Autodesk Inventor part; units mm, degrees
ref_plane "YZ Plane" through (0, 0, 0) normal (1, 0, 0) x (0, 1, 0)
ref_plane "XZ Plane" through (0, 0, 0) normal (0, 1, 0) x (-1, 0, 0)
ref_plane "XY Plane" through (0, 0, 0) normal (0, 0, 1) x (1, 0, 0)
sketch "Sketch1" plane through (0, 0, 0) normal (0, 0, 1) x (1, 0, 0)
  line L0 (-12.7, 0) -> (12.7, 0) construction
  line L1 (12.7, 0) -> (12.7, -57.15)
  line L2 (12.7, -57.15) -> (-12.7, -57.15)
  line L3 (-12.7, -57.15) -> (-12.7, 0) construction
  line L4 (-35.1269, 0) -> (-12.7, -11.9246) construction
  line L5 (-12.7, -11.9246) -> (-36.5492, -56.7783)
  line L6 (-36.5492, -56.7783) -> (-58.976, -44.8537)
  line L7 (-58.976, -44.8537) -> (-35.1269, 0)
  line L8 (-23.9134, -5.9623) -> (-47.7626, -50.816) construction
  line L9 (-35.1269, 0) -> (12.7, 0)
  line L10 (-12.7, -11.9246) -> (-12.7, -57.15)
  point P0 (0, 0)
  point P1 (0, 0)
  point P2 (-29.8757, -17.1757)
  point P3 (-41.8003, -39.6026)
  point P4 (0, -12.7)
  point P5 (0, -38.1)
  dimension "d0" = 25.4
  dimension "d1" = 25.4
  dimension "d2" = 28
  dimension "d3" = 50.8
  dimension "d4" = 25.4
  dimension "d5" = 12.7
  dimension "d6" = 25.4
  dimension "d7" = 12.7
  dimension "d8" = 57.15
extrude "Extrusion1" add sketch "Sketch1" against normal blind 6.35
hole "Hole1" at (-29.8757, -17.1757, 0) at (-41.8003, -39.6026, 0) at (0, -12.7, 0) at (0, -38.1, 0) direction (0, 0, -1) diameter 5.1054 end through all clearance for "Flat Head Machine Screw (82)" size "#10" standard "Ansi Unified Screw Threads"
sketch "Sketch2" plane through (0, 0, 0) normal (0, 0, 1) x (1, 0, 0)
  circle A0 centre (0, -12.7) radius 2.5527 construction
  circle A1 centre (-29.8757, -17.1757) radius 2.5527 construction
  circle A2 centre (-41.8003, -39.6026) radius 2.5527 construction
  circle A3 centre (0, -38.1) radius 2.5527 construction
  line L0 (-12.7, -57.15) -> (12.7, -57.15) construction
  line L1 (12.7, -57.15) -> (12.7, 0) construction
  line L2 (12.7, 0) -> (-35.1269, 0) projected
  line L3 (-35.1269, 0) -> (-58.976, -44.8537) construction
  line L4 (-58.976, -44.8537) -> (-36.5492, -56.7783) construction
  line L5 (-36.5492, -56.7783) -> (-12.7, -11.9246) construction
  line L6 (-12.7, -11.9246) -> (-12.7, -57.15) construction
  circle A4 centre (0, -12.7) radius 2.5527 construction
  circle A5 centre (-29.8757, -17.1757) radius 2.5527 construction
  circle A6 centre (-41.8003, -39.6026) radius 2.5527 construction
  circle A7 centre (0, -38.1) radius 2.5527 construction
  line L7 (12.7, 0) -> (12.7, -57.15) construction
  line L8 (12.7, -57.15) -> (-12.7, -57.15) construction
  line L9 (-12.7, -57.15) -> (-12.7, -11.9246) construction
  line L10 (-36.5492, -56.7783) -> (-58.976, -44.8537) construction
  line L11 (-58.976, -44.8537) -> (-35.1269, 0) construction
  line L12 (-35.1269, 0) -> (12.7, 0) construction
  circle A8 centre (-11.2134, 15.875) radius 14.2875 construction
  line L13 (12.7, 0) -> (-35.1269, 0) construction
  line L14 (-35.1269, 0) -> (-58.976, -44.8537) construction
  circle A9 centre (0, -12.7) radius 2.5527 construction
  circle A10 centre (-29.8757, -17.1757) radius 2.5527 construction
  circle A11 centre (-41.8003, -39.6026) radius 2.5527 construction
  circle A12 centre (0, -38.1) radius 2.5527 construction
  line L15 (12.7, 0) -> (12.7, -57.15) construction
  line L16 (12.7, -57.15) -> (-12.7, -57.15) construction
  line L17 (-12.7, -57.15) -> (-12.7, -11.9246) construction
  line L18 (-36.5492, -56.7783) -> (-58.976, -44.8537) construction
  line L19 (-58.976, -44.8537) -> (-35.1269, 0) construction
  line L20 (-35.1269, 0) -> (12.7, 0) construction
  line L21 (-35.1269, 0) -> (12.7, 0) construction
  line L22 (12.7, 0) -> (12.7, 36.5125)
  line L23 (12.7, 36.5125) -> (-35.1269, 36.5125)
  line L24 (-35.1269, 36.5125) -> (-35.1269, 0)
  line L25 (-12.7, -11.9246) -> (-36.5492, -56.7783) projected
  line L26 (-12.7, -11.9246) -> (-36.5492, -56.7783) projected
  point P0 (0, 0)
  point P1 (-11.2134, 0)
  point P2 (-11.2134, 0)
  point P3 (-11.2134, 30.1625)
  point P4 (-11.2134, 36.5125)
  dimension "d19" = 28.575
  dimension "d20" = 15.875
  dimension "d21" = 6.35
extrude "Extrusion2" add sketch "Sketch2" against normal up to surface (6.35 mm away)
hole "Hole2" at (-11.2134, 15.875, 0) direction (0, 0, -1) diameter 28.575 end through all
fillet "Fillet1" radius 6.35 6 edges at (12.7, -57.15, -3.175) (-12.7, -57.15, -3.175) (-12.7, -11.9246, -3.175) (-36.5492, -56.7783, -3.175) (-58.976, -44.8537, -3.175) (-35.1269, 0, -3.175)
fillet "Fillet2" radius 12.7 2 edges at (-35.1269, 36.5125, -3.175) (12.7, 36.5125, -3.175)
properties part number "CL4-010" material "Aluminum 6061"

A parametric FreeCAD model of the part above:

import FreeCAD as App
import Part
import Sketcher

V = App.Vector
Q = App.Units.Quantity


def edges_at(feature, points):
    """Names of the edges that pass closest to the given points."""
    edges = feature.Shape.Edges
    near = lambda p: min(range(len(edges)), key=lambda i: edges[i].distToShape(Part.Vertex(*p))[0])
    return sorted({f"Edge{near(p) + 1}" for p in points})

doc = App.newDocument("Part")
body = doc.addObject("PartDesign::Body", "Body")

sketch1 = body.newObject("Sketcher::SketchObject", "Sketch")
sketch1.AttachmentSupport = (doc.getObject("XY_Plane"), [""])
sketch1.MapMode = "FlatFace"
sketch1.addGeometry(Part.LineSegment(V(13, -57, 0), V(13, 0, 0)), False)
sketch1.addGeometry(Part.LineSegment(V(13, 0, 0), V(-35, 0, 0)), False)
sketch1.addGeometry(Part.LineSegment(V(-35, 0, 0), V(-59, -45, 0)), False)
sketch1.addGeometry(Part.LineSegment(V(-59, -45, 0), V(-37, -57, 0)), False)
sketch1.addGeometry(Part.LineSegment(V(-37, -57, 0), V(-13, -12, 0)), False)
sketch1.addGeometry(Part.LineSegment(V(-13, -12, 0), V(-13, -57, 0)), False)
sketch1.addGeometry(Part.LineSegment(V(-13, -57, 0), V(13, -57, 0)), False)
sketch1.addConstraint(Sketcher.Constraint("Coincident", 0, 2, 1, 1))
sketch1.addConstraint(Sketcher.Constraint("Coincident", 1, 2, 2, 1))
sketch1.addConstraint(Sketcher.Constraint("Coincident", 2, 2, 3, 1))
sketch1.addConstraint(Sketcher.Constraint("Coincident", 3, 2, 4, 1))
sketch1.addConstraint(Sketcher.Constraint("Coincident", 4, 2, 5, 1))
sketch1.addConstraint(Sketcher.Constraint("Coincident", 5, 2, 6, 1))
sketch1.addConstraint(Sketcher.Constraint("Coincident", 6, 2, 0, 1))
sketch1.addConstraint(Sketcher.Constraint("Vertical", 0))
sketch1.addConstraint(Sketcher.Constraint("Horizontal", 1))
sketch1.addConstraint(Sketcher.Constraint("Vertical", 5))
sketch1.addConstraint(Sketcher.Constraint("Horizontal", 6))
sketch1.addConstraint(Sketcher.Constraint("PointOnObject", 0, 2, -1))
sketch1.addConstraint(Sketcher.Constraint("Perpendicular", 2, 3))
sketch1.addConstraint(Sketcher.Constraint("Perpendicular", 3, 4))
sketch1.addConstraint(Sketcher.Constraint("Equal", 2, 4))
sketch1.addConstraint(Sketcher.Constraint("DistanceX", 6, 1, 6, 2, Q("1 in")))
sketch1.addConstraint(Sketcher.Constraint("Distance", 2, Q("2 in")))
sketch1.addConstraint(Sketcher.Constraint("Distance", 3, Q("1 in")))
sketch1.addConstraint(Sketcher.Constraint("Angle", 3, Q("-28 deg")))
sketch1.addConstraint(Sketcher.Constraint("DistanceY", 0, 1, 0, 2, Q("2.25 in")))
sketch1.addConstraint(Sketcher.Constraint("DistanceX", -1, 1, 0, 2, Q("0.5 in")))
pad1 = body.newObject("PartDesign::Pad", "Pad")
pad1.Profile = sketch1
pad1.Length = Q("0.25 in")
pad1.Reversed = True

sketch2 = body.newObject("Sketcher::SketchObject", "Sketch001")
sketch2.AttachmentSupport = (doc.getObject("XY_Plane"), [""])
sketch2.MapMode = "FlatFace"
sketch2.addGeometry(Part.Circle(V(-29.9, -17.2, 0), V(0, 0, 1), 2.6), False)
sketch2.addGeometry(Part.Circle(V(-41.8, -39.6, 0), V(0, 0, 1), 2.6), False)
sketch2.addGeometry(Part.Circle(V(0, -12.7, 0), V(0, 0, 1), 2.6), False)
sketch2.addGeometry(Part.Circle(V(0, -38.1, 0), V(0, 0, 1), 2.6), False)
sketch2.addConstraint(Sketcher.Constraint("Equal", 0, 1))
sketch2.addConstraint(Sketcher.Constraint("Equal", 1, 2))
sketch2.addConstraint(Sketcher.Constraint("Equal", 2, 3))
sketch2.addConstraint(Sketcher.Constraint("PointOnObject", 2, 3, -2))
sketch2.addConstraint(Sketcher.Constraint("PointOnObject", 3, 3, -2))
sketch2.addConstraint(Sketcher.Constraint("Diameter", 0, Q("0.201 in")))
sketch2.addConstraint(Sketcher.Constraint("DistanceY", 3, 3, 2, 3, Q("1 in")))
sketch2.addConstraint(Sketcher.Constraint("DistanceY", 2, 3, -1, 1, Q("0.5 in")))
sketch2.addConstraint(Sketcher.Constraint("DistanceX", 0, 3, -1, 1, Q("1.1762 in")))
sketch2.addConstraint(Sketcher.Constraint("DistanceY", 0, 3, -1, 1, Q("0.6762 in")))
sketch2.addConstraint(Sketcher.Constraint("DistanceX", 1, 3, -1, 1, 41.8003))
sketch2.addConstraint(Sketcher.Constraint("DistanceY", 1, 3, -1, 1, 39.6026))
doc.recompute()
hole = body.newObject("PartDesign::Hole", "Hole")
hole.Profile = sketch2
hole.ThreadType = "None"
hole.Diameter = Q("0.201 in")
hole.DepthType = "ThroughAll"

sketch3 = body.newObject("Sketcher::SketchObject", "Sketch002")
sketch3.AttachmentSupport = (doc.getObject("XY_Plane"), [""])
sketch3.MapMode = "FlatFace"
sketch3.addGeometry(Part.LineSegment(V(-35, 0, 0), V(13, 0, 0)), False)
sketch3.addGeometry(Part.LineSegment(V(13, 0, 0), V(13, 37, 0)), False)
sketch3.addGeometry(Part.LineSegment(V(13, 37, 0), V(-35, 37, 0)), False)
sketch3.addGeometry(Part.LineSegment(V(-35, 37, 0), V(-35, 0, 0)), False)
sketch3.addConstraint(Sketcher.Constraint("Coincident", 0, 2, 1, 1))
sketch3.addConstraint(Sketcher.Constraint("Coincident", 1, 2, 2, 1))
sketch3.addConstraint(Sketcher.Constraint("Coincident", 2, 2, 3, 1))
sketch3.addConstraint(Sketcher.Constraint("Coincident", 3, 2, 0, 1))
sketch3.addConstraint(Sketcher.Constraint("Horizontal", 0))
sketch3.addConstraint(Sketcher.Constraint("Vertical", 1))
sketch3.addConstraint(Sketcher.Constraint("Horizontal", 2))
sketch3.addConstraint(Sketcher.Constraint("Vertical", 3))
sketch3.addConstraint(Sketcher.Constraint("PointOnObject", 0, 2, -1))
sketch3.addConstraint(Sketcher.Constraint("DistanceX", -1, 1, 0, 2, Q("0.5 in")))
sketch3.addConstraint(Sketcher.Constraint("DistanceY", 1, 1, 1, 2, Q("1.4375 in")))
sketch3.addConstraint(Sketcher.Constraint("DistanceX", 0, 1, 0, 2, 47.827))
pad2 = body.newObject("PartDesign::Pad", "Pad001")
pad2.Profile = sketch3
pad2.Length = Q("0.25 in")
pad2.Reversed = True

sketch4 = body.newObject("Sketcher::SketchObject", "Sketch003")
sketch4.AttachmentSupport = (doc.getObject("XY_Plane"), [""])
sketch4.MapMode = "FlatFace"
sketch4.addGeometry(Part.Circle(V(-11, 16, 0), V(0, 0, 1), 14), False)
sketch4.addConstraint(Sketcher.Constraint("Diameter", 0, Q("1.125 in")))
sketch4.addConstraint(Sketcher.Constraint("DistanceY", -1, 1, 0, 3, Q("0.625 in")))
sketch4.addConstraint(Sketcher.Constraint("DistanceX", 0, 3, -1, 1, 11.2134))
doc.recompute()
hole2 = body.newObject("PartDesign::Hole", "Hole001")
hole2.Profile = sketch4
hole2.ThreadType = "None"
hole2.Diameter = Q("1.125 in")
hole2.DepthType = "ThroughAll"
doc.recompute()

fillet = body.newObject("PartDesign::Fillet", "Fillet")
fillet.Base = (hole2, edges_at(hole2, [
    (12.7, -57.15, -3.175),
    (-12.7, -57.15, -3.175),
    (-12.7, -11.925, -3.175),
    (-36.549, -56.778, -3.175),
    (-58.976, -44.854, -3.175),
    (-35.127, 0, -3.175),
]))
fillet.Radius = Q("0.25 in")
doc.recompute()

fillet2 = body.newObject("PartDesign::Fillet", "Fillet001")
fillet2.Base = (fillet, edges_at(fillet, [(-35.127, 36.513, -3.175), (12.7, 36.513, -3.175)]))
fillet2.Radius = Q("0.5 in")

doc.recompute()
